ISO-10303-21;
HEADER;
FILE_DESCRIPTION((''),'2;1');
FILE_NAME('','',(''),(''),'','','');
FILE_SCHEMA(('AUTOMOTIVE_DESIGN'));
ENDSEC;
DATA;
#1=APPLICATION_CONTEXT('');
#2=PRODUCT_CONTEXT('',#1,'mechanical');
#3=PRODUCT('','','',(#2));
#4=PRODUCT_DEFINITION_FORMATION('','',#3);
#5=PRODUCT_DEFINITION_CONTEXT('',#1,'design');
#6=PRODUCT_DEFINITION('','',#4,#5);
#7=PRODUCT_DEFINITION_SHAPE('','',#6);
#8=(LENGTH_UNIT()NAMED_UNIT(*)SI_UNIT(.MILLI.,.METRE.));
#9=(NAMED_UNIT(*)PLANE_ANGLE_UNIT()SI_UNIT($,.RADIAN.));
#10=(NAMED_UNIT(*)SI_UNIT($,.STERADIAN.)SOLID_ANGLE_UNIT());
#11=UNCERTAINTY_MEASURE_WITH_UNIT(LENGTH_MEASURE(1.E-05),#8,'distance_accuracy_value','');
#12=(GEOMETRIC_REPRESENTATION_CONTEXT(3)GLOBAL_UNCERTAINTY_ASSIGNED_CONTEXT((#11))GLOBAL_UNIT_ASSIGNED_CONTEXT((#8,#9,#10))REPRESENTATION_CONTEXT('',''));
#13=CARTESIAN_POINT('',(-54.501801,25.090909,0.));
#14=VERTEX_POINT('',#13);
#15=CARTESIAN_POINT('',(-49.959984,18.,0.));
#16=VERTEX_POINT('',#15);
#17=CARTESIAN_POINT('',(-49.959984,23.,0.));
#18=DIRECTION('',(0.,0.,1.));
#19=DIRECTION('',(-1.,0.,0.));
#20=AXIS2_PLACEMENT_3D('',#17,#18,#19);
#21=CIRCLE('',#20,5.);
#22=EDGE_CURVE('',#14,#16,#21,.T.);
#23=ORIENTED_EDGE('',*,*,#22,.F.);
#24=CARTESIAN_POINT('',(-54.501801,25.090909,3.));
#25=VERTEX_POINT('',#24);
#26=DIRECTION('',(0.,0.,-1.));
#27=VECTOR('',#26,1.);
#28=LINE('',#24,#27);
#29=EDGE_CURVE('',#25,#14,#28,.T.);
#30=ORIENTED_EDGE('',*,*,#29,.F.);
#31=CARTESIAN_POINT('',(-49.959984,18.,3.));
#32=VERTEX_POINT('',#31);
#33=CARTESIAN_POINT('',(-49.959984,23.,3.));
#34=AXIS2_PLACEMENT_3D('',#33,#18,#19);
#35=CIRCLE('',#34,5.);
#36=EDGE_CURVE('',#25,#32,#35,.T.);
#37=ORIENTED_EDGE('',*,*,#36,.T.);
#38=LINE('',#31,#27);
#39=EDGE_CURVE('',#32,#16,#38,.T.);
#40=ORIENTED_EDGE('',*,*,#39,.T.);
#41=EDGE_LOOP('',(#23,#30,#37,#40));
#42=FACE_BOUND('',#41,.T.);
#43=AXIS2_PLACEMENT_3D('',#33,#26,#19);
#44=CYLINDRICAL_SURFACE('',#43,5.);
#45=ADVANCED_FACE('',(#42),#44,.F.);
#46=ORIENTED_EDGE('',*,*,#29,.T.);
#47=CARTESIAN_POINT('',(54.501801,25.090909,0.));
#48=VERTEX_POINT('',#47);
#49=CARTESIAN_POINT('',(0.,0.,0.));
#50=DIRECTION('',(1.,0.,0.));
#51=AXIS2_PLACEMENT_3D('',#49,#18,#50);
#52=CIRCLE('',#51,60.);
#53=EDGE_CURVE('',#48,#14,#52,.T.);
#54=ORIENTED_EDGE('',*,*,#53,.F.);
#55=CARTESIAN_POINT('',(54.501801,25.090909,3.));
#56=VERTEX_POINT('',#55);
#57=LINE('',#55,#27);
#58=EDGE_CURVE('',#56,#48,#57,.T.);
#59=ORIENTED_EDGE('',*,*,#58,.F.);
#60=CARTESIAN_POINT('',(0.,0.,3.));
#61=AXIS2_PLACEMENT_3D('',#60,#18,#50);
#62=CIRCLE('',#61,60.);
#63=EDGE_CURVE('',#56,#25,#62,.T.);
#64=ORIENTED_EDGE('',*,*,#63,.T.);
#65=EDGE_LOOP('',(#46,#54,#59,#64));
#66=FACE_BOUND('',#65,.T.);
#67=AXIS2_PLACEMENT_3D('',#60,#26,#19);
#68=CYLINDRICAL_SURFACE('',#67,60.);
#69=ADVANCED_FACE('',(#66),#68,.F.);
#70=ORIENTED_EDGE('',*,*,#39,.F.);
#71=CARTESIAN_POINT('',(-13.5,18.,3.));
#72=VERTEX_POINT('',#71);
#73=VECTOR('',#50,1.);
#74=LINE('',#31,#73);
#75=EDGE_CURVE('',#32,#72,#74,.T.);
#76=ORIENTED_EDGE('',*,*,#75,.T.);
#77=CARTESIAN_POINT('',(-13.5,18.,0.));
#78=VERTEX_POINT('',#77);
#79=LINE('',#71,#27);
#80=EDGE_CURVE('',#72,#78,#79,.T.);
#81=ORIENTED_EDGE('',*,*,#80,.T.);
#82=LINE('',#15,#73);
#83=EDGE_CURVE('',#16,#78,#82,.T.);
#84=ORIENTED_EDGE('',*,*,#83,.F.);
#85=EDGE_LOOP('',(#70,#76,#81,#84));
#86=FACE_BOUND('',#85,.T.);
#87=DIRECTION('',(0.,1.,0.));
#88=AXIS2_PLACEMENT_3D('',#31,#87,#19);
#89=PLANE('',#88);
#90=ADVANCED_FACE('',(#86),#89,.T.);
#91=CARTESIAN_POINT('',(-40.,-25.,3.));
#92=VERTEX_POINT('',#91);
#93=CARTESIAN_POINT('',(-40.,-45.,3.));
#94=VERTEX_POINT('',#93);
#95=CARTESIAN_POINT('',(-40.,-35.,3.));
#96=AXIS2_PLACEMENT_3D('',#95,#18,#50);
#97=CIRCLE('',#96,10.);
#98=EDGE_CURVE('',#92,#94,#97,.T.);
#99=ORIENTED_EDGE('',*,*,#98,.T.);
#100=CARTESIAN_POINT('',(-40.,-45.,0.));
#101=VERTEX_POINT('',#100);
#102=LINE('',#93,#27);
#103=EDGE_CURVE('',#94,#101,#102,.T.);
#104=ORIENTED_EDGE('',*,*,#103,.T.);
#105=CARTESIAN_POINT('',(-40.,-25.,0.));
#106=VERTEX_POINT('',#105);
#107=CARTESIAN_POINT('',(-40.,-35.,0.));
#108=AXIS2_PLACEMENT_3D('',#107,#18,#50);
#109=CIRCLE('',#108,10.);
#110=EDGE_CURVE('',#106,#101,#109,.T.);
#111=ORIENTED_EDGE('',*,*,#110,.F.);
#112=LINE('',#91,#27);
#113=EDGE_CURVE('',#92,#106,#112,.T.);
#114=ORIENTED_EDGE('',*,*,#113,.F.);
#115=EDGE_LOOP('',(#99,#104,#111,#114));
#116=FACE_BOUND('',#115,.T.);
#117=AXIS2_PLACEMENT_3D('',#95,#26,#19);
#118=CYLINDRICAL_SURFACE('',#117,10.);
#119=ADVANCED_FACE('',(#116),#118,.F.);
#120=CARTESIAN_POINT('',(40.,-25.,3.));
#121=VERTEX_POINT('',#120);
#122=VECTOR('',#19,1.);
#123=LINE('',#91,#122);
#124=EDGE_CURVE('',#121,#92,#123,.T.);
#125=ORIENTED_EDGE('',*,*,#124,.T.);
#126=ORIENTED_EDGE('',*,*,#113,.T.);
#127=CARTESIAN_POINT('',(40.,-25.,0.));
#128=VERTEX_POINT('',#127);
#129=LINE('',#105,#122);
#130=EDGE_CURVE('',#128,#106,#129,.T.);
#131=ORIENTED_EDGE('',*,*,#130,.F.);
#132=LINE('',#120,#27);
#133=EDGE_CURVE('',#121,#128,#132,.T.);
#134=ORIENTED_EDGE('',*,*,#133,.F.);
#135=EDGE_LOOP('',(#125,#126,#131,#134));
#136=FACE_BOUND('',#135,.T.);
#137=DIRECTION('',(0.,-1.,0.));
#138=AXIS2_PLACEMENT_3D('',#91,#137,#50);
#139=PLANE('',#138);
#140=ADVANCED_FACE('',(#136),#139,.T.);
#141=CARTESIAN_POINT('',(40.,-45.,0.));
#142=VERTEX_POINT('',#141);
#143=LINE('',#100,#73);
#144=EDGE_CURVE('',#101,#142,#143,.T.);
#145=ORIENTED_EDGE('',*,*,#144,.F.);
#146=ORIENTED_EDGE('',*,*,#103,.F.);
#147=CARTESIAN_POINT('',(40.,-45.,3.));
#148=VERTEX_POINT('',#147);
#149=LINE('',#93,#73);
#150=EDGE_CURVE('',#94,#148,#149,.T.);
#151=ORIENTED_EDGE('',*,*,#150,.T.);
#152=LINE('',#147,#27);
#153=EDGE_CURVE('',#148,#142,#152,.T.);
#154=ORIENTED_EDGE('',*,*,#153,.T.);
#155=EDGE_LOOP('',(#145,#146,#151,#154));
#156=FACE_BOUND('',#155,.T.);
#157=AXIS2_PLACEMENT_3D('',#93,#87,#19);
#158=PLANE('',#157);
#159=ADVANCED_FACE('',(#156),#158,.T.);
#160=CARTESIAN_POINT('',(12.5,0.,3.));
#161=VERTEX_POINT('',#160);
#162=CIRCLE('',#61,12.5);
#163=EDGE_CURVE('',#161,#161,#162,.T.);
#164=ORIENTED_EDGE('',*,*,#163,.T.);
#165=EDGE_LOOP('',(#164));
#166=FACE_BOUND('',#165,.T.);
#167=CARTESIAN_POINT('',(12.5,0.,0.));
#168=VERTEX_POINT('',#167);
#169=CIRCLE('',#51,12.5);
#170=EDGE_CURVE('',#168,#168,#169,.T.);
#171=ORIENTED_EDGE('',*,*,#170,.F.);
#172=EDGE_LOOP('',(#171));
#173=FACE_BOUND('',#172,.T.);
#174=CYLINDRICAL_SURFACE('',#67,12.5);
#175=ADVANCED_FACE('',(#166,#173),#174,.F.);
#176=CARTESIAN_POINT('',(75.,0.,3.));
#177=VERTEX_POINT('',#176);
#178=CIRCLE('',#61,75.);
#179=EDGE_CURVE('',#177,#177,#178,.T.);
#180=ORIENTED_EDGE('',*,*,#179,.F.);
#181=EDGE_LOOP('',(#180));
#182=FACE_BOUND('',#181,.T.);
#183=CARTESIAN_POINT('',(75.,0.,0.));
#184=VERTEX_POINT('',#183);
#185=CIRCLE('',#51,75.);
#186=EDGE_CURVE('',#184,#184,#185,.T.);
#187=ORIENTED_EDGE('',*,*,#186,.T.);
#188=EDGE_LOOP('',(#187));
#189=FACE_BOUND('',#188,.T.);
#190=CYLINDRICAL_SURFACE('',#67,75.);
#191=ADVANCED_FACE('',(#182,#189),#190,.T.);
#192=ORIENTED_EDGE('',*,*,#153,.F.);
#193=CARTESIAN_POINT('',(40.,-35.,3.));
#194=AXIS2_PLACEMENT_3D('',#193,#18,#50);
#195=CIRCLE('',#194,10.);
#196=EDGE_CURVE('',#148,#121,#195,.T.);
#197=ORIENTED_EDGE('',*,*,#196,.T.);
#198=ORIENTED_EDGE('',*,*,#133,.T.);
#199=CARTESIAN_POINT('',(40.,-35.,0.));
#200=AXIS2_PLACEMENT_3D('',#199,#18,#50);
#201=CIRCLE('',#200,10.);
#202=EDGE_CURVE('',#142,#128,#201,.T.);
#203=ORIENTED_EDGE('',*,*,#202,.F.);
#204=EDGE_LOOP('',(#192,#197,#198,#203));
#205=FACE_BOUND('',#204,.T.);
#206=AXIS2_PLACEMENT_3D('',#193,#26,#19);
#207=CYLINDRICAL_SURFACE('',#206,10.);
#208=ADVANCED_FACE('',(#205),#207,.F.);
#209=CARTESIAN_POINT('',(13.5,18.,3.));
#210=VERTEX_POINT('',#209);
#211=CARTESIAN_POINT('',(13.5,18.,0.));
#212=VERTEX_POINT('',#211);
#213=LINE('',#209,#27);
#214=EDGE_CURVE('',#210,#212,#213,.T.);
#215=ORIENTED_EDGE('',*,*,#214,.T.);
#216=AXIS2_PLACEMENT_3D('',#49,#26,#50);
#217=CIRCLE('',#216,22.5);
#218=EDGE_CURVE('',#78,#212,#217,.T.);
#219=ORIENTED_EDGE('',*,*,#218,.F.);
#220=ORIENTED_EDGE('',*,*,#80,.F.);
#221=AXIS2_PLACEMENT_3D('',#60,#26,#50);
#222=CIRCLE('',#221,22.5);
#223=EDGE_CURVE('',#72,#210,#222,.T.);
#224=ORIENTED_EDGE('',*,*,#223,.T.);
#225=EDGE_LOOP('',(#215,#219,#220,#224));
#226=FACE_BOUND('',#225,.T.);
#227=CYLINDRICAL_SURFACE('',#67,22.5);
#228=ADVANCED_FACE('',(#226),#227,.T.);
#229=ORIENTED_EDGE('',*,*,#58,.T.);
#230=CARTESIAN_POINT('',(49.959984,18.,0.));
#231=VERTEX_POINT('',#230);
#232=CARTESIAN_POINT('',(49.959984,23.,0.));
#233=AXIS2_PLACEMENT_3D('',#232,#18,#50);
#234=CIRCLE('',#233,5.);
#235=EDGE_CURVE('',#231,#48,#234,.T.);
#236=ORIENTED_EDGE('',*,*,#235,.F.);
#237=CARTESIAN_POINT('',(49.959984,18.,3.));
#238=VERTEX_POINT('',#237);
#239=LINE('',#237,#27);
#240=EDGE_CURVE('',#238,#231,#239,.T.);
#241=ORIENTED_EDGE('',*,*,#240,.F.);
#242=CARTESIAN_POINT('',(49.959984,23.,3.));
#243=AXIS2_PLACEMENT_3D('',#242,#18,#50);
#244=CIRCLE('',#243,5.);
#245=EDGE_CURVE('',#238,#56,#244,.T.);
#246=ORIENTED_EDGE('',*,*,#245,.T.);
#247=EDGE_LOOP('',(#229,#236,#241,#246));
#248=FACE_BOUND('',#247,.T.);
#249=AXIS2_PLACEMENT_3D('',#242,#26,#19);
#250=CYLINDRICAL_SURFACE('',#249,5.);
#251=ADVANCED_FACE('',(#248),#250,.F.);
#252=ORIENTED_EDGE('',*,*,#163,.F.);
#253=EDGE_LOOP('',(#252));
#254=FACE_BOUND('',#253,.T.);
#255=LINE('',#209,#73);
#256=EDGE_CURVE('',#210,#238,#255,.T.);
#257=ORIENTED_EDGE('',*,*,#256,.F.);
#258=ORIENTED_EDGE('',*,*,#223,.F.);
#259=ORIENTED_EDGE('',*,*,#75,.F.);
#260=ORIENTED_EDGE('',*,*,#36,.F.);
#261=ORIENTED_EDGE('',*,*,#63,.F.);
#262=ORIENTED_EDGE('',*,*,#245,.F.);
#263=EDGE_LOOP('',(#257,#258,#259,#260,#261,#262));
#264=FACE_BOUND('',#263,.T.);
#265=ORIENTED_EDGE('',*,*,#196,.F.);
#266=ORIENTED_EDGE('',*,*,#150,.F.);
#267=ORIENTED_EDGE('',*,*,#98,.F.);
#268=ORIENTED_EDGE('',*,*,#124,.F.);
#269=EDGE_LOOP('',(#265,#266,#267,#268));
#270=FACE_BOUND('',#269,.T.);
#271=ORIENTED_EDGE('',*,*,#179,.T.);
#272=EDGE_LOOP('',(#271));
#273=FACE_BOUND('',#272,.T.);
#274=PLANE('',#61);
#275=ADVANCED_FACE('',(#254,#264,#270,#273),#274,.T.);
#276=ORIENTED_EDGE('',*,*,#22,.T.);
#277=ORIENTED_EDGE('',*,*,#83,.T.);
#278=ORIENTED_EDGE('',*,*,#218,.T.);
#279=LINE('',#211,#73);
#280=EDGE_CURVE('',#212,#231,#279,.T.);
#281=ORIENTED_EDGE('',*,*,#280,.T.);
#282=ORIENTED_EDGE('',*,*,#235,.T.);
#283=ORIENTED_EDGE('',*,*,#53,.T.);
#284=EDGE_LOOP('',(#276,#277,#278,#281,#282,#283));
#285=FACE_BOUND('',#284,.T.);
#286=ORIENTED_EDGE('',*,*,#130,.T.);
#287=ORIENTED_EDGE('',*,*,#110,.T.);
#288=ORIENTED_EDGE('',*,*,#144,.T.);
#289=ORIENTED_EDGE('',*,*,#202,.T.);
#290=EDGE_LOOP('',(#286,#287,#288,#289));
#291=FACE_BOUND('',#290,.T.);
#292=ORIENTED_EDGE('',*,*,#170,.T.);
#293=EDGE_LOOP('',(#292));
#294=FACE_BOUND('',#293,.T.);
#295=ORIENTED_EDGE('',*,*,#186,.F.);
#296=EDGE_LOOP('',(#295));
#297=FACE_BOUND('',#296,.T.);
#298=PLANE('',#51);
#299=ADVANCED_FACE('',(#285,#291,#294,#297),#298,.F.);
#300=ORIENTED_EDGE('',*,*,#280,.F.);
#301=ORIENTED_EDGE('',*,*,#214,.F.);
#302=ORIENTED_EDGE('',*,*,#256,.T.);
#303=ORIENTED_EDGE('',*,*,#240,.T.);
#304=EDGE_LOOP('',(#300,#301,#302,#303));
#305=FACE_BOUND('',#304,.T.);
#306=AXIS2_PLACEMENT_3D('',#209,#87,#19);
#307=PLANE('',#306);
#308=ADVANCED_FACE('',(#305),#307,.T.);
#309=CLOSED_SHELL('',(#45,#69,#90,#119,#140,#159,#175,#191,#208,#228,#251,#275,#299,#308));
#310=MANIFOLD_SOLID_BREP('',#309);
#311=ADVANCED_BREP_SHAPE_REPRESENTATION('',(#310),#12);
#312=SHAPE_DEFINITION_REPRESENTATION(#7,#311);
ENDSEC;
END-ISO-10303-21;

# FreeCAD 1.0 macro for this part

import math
import FreeCAD as App
import Part
import Sketcher
from FreeCAD import Vector
Q = App.Units.Quantity

doc = App.newDocument("Part")
body = doc.addObject("PartDesign::Body", "Body")

# Sketch on XY plane
sketch1 = body.newObject("Sketcher::SketchObject", "Sketch")
sketch1.AttachmentSupport = (doc.getObject("XY_Plane"), [""])
sketch1.MapMode = "FlatFace"
sketch1.addGeometry(Part.Circle(Vector(0, 0, 0), Vector(0, 0, 1), 75), False)
sketch1.addGeometry(Part.ArcOfCircle(Part.Circle(Vector(-40, -35, 0), Vector(0, 0, 1), 10), math.radians(90), math.radians(270)), False)
sketch1.addGeometry(Part.LineSegment(Vector(-40, -25, 0), Vector(40, -25, 0)), False)
sketch1.addGeometry(Part.ArcOfCircle(Part.Circle(Vector(40, -35, 0), Vector(0, 0, 1), 10), math.radians(-90), math.radians(90)), False)
sketch1.addGeometry(Part.LineSegment(Vector(40, -45, 0), Vector(-40, -45, 0)), False)
sketch1.addGeometry(Part.Circle(Vector(0, 0, 0), Vector(0, 0, 1), 12.5), False)
sketch1.addGeometry(Part.LineSegment(Vector(-13.5, 18, 0), Vector(-50, 18, 0)), False)
sketch1.addGeometry(Part.ArcOfCircle(Part.Circle(Vector(-50, 23, 0), Vector(0, 0, 1), 5), math.radians(155), math.radians(270)), False)
sketch1.addGeometry(Part.ArcOfCircle(Part.Circle(Vector(0, 0, 0), Vector(0, 0, 1), 60), math.radians(25), math.radians(155)), False)
sketch1.addGeometry(Part.ArcOfCircle(Part.Circle(Vector(50, 23, 0), Vector(0, 0, 1), 5), math.radians(-90), math.radians(25)), False)
sketch1.addGeometry(Part.LineSegment(Vector(50, 18, 0), Vector(13.5, 18, 0)), False)
sketch1.addGeometry(Part.ArcOfCircle(Part.Circle(Vector(0, 0, 0), Vector(0, 0, 1), 22.5), math.radians(53), math.radians(127)), False)
sketch1.addConstraint(Sketcher.Constraint("Tangent", 1, 1, 2, 1))
sketch1.addConstraint(Sketcher.Constraint("Tangent", 2, 2, 3, 2))
sketch1.addConstraint(Sketcher.Constraint("Tangent", 3, 1, 4, 1))
sketch1.addConstraint(Sketcher.Constraint("Tangent", 4, 2, 1, 2))
sketch1.addConstraint(Sketcher.Constraint("Tangent", 6, 2, 7, 2))
sketch1.addConstraint(Sketcher.Constraint("Tangent", 7, 1, 8, 2))
sketch1.addConstraint(Sketcher.Constraint("Tangent", 8, 1, 9, 2))
sketch1.addConstraint(Sketcher.Constraint("Tangent", 9, 1, 10, 1))
sketch1.addConstraint(Sketcher.Constraint("Coincident", 10, 2, 11, 1))
sketch1.addConstraint(Sketcher.Constraint("Coincident", 11, 2, 6, 1))
sketch1.addConstraint(Sketcher.Constraint("Horizontal", 2))
sketch1.addConstraint(Sketcher.Constraint("Horizontal", 4))
sketch1.addConstraint(Sketcher.Constraint("Horizontal", 6))
sketch1.addConstraint(Sketcher.Constraint("Horizontal", 10))
sketch1.addConstraint(Sketcher.Constraint("Coincident", 0, 3, -1, 1))
sketch1.addConstraint(Sketcher.Constraint("Coincident", 5, 3, -1, 1))
sketch1.addConstraint(Sketcher.Constraint("Coincident", 8, 3, -1, 1))
sketch1.addConstraint(Sketcher.Constraint("Coincident", 11, 3, -1, 1))
sketch1.addConstraint(Sketcher.Constraint("Equal", 7, 9))
sketch1.addConstraint(Sketcher.Constraint("Horizontal", 7, 3, 9, 3))
sketch1.addConstraint(Sketcher.Constraint("Diameter", 0, Q("150 mm")))
sketch1.addConstraint(Sketcher.Constraint("Diameter", 5, Q("25 mm")))
sketch1.addConstraint(Sketcher.Constraint("Radius", 1, Q("10 mm")))
sketch1.addConstraint(Sketcher.Constraint("Radius", 7, Q("5 mm")))
sketch1.addConstraint(Sketcher.Constraint("Radius", 8, Q("60 mm")))
sketch1.addConstraint(Sketcher.Constraint("Radius", 11, Q("22.5 mm")))
sketch1.addConstraint(Sketcher.Constraint("DistanceX", 2, 1, 2, 2, Q("80 mm")))
sketch1.addConstraint(Sketcher.Constraint("DistanceX", 1, 3, -1, 1, Q("40 mm")))
sketch1.addConstraint(Sketcher.Constraint("DistanceY", 1, 3, -1, 1, Q("35 mm")))
sketch1.addConstraint(Sketcher.Constraint("DistanceY", -1, 1, 7, 3, Q("23 mm")))
pad1 = body.newObject("PartDesign::Pad", "Pad")
pad1.Profile = sketch1
pad1.Length = 3

doc.recompute()
